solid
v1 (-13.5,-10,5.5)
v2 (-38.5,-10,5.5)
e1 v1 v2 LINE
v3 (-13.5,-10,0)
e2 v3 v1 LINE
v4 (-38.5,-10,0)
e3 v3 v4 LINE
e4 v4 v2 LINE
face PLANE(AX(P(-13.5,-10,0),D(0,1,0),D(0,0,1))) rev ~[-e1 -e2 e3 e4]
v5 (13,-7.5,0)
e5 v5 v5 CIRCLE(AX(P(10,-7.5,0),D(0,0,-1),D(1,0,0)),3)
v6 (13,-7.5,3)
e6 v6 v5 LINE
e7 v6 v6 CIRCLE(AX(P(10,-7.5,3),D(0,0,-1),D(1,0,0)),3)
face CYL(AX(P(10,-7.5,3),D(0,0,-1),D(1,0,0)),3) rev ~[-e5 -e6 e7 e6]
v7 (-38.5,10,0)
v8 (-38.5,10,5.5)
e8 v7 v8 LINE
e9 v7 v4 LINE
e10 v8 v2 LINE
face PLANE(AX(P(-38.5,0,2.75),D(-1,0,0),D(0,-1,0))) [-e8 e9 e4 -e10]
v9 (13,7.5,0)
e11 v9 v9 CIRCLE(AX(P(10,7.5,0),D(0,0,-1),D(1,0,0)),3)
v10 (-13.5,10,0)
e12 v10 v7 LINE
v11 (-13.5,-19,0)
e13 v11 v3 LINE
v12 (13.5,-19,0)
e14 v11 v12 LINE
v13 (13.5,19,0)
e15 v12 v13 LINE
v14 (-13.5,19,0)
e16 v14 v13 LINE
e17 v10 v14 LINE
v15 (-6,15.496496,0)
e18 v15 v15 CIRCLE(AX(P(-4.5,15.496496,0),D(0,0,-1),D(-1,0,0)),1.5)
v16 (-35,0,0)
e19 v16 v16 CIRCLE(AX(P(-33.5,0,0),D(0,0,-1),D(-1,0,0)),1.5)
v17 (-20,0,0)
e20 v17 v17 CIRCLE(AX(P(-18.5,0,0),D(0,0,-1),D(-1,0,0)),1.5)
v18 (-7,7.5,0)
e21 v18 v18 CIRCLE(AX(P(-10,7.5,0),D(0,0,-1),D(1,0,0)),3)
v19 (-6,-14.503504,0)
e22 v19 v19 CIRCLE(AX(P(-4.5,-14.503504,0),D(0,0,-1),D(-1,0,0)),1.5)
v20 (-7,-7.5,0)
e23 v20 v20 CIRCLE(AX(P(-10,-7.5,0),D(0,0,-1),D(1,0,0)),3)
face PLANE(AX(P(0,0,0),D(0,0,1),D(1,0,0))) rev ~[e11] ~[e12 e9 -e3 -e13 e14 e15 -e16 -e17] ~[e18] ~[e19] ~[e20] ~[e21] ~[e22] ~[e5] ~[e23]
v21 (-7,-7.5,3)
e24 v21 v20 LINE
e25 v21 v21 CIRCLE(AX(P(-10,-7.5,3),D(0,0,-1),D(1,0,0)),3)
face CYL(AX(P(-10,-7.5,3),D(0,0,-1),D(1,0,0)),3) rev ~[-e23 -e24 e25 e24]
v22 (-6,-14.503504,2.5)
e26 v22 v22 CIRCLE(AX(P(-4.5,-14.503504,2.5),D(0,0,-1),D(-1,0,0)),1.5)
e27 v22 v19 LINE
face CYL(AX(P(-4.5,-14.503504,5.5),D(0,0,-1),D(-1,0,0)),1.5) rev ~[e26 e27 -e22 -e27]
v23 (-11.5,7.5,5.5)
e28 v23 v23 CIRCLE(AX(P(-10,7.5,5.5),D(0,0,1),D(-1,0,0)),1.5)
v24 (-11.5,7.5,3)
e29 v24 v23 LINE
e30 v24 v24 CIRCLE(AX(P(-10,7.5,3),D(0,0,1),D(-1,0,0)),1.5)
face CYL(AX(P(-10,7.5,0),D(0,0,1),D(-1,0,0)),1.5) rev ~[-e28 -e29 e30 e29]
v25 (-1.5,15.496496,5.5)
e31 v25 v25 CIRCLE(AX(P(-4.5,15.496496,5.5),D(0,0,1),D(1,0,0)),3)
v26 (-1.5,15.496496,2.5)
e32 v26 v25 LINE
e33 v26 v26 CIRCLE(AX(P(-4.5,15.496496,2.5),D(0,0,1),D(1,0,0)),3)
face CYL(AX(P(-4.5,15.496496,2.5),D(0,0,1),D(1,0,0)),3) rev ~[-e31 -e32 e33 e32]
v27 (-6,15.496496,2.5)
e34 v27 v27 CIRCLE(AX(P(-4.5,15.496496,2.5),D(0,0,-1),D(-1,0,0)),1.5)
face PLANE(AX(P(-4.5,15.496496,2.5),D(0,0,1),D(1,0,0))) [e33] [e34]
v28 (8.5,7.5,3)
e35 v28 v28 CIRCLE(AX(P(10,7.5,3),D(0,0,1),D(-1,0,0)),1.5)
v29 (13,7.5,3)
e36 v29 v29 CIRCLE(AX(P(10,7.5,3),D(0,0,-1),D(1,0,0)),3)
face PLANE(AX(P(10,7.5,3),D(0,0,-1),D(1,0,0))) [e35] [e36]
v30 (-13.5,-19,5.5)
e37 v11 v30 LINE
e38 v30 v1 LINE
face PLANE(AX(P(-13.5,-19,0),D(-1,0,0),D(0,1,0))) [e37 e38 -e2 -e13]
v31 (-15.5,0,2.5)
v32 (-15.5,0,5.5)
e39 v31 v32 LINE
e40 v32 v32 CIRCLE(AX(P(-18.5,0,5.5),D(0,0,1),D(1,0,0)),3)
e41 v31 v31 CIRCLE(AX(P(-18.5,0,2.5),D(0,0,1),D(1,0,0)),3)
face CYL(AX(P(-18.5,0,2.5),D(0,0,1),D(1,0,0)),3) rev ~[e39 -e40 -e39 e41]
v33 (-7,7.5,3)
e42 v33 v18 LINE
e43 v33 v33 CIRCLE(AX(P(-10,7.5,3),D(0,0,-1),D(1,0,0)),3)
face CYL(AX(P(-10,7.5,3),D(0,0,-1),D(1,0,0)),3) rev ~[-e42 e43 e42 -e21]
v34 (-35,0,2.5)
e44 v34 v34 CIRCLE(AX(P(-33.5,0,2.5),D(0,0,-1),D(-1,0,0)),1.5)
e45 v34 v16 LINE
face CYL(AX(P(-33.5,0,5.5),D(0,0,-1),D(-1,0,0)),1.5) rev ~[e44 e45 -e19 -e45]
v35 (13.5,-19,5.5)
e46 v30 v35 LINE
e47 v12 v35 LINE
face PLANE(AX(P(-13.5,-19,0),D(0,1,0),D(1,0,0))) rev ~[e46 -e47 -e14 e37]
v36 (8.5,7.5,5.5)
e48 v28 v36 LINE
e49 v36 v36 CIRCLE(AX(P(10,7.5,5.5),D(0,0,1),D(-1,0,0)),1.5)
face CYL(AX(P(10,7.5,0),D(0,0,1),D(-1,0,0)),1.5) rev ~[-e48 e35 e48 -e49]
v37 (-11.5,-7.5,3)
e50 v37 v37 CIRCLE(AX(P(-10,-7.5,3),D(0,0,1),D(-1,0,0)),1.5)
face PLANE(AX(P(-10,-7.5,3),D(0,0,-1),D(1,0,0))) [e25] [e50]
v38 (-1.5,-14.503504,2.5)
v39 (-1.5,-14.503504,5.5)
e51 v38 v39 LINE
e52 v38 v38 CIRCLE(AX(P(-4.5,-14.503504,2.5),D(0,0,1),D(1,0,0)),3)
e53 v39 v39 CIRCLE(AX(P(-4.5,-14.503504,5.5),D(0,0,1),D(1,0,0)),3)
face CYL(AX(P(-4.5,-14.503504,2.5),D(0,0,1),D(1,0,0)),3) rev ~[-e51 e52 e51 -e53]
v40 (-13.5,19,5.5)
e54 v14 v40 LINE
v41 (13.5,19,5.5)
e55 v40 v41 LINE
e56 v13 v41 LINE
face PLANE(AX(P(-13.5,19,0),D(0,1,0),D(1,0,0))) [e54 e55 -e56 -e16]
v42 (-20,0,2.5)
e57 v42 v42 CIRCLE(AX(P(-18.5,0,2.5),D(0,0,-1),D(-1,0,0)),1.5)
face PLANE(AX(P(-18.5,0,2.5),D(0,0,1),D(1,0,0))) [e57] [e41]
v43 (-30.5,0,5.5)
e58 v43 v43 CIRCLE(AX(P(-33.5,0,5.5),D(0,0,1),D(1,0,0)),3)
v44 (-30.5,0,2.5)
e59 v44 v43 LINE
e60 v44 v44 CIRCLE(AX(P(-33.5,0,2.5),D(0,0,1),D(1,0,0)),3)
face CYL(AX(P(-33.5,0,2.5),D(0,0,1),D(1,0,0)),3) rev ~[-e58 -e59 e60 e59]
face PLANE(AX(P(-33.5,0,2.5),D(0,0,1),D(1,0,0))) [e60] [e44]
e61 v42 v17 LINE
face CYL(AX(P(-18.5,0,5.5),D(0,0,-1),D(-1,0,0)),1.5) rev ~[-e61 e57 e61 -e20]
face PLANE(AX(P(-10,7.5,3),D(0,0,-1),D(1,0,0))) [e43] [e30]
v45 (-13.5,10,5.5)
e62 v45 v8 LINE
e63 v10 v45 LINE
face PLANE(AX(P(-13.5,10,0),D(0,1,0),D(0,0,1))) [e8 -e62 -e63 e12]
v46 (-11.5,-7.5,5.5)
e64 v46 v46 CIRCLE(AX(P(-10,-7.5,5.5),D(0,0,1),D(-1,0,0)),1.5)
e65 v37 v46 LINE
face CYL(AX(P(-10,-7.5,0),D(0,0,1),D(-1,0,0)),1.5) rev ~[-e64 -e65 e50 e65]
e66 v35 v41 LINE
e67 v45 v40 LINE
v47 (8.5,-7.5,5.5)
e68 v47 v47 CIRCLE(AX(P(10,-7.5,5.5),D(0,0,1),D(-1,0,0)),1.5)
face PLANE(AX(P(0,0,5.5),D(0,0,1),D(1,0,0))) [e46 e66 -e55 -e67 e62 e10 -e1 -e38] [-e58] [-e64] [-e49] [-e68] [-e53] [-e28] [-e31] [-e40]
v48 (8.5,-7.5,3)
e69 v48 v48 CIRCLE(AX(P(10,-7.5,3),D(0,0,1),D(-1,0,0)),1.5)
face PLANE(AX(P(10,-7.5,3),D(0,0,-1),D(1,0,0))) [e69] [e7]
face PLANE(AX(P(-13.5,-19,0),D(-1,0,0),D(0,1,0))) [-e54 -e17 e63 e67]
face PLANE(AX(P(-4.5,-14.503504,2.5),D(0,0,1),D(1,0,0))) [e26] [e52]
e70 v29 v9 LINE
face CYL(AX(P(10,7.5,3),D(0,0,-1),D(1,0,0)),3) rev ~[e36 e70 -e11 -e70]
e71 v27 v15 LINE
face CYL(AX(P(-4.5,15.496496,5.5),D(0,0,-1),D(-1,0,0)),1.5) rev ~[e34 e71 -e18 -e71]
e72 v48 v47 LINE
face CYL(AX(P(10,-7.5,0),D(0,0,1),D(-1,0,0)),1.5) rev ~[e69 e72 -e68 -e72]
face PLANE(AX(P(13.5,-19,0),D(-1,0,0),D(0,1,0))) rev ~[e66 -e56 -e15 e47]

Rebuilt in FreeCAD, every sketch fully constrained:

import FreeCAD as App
import Part
import Sketcher

V = App.Vector
Q = App.Units.Quantity

doc = App.newDocument("Part")
params = doc.addObject("Spreadsheet::Sheet", "Params")
for row, (alias, value) in enumerate([
    ("sketch1_width", "27 mm"),
    ("sketch1_height", "38 mm"),
    ("pad1_length", "5.5 mm"),
    ("sketch2_diameter", "3 mm"),
    ("hole_diameter", "3 mm"),
    ("hole_depth", "50 mm"),
    ("hole_cbore_diameter", "6 mm"),
    ("hole_cbore_depth", "3 mm"),
    ("sketch3_diameter", "3 mm"),
    ("hole2_diameter", "3 mm"),
    ("hole2_depth", "50 mm"),
    ("hole2_cbore_diameter", "6 mm"),
    ("hole2_cbore_depth", "3 mm"),
    ("sketch4_width", "20 mm"),
    ("sketch4_height", "5.5 mm"),
    ("pad2_length", "25 mm"),
    ("sketch5_diameter", "3 mm"),
    ("hole3_diameter", "3 mm"),
    ("hole3_depth", "50 mm"),
    ("hole3_cbore_diameter", "6 mm"),
    ("hole3_cbore_depth", "3 mm"),
], start=1):
    params.set(f"A{row}", alias)
    params.set(f"B{row}", "=" + value)
    params.setAlias(f"B{row}", alias)

body = doc.addObject("PartDesign::Body", "Body")

sketch1 = doc.addObject("Sketcher::SketchObject", "Sketch")
body.addObject(sketch1)
sketch1.AttachmentSupport = (doc.XY_Plane, [""])
sketch1.MapMode = "FlatFace"
sketch1.addGeometry(Part.LineSegment(V(-14, 19, 0), V(-14, -19, 0)), False)
sketch1.addGeometry(Part.LineSegment(V(-14, -19, 0), V(14, -19, 0)), False)
sketch1.addGeometry(Part.LineSegment(V(14, -19, 0), V(14, 19, 0)), False)
sketch1.addGeometry(Part.LineSegment(V(14, 19, 0), V(-14, 19, 0)), False)
sketch1.addConstraint(Sketcher.Constraint("Coincident", 0, 2, 1, 1))
sketch1.addConstraint(Sketcher.Constraint("Coincident", 1, 2, 2, 1))
sketch1.addConstraint(Sketcher.Constraint("Coincident", 2, 2, 3, 1))
sketch1.addConstraint(Sketcher.Constraint("Coincident", 3, 2, 0, 1))
sketch1.addConstraint(Sketcher.Constraint("Vertical", 0))
sketch1.addConstraint(Sketcher.Constraint("Horizontal", 1))
sketch1.addConstraint(Sketcher.Constraint("Vertical", 2))
sketch1.addConstraint(Sketcher.Constraint("Horizontal", 3))
sketch1.addConstraint(Sketcher.Constraint("Symmetric", 0, 2, 2, 2, -1, 1))
sketch1.addConstraint(Sketcher.Constraint("DistanceX", 1, 1, 1, 2, Q("27 mm")))
sketch1.addConstraint(Sketcher.Constraint("DistanceY", 0, 2, 0, 1, Q("38 mm")))
sketch1.setExpression("Constraints[9]", "Params.sketch1_width")
sketch1.setExpression("Constraints[10]", "Params.sketch1_height")
pad1 = doc.addObject("PartDesign::Pad", "Pad")
body.addObject(pad1)
pad1.Profile = sketch1
pad1.setExpression("Length", "Params.pad1_length")

sketch2 = doc.addObject("Sketcher::SketchObject", "Sketch001")
body.addObject(sketch2)
sketch2.AttachmentSupport = (doc.XY_Plane, [""])
sketch2.MapMode = "FlatFace"
sketch2.addGeometry(Part.Circle(V(-10, 7.5, 0), V(0, 0, 1), 1.5), False)
sketch2.addGeometry(Part.Circle(V(-10, -7.5, 0), V(0, 0, 1), 1.5), False)
sketch2.addGeometry(Part.Circle(V(10, 7.5, 0), V(0, 0, 1), 1.5), False)
sketch2.addGeometry(Part.Circle(V(10, -7.5, 0), V(0, 0, 1), 1.5), False)
sketch2.addConstraint(Sketcher.Constraint("Equal", 0, 1))
sketch2.addConstraint(Sketcher.Constraint("Equal", 1, 2))
sketch2.addConstraint(Sketcher.Constraint("Equal", 2, 3))
sketch2.addConstraint(Sketcher.Constraint("Symmetric", 1, 3, 2, 3, -1, 1))
sketch2.addConstraint(Sketcher.Constraint("Symmetric", 0, 3, 3, 3, -1, 1))
sketch2.addConstraint(Sketcher.Constraint("Symmetric", 0, 3, 2, 3, -2))
sketch2.addConstraint(Sketcher.Constraint("Diameter", 0, Q("3 mm")))
sketch2.addConstraint(Sketcher.Constraint("DistanceX", 0, 3, -1, 1, Q("10 mm")))
sketch2.addConstraint(Sketcher.Constraint("DistanceY", 1, 3, 0, 3, Q("15 mm")))
sketch2.setExpression("Constraints[6]", "Params.sketch2_diameter")
doc.recompute()
hole = doc.addObject("PartDesign::Hole", "Hole")
body.addObject(hole)
hole.Profile = sketch2
hole.ThreadType = "None"
hole.setExpression("Diameter", "Params.hole_diameter")
hole.DepthType = "Dimension"
hole.setExpression("Depth", "Params.hole_depth")
hole.DrillPoint = "Flat"
hole.HoleCutType = "Counterbore"
hole.setExpression("HoleCutDiameter", "Params.hole_cbore_diameter")
hole.setExpression("HoleCutDepth", "Params.hole_cbore_depth")
hole.Reversed = True

sketch3 = doc.addObject("Sketcher::SketchObject", "Sketch002")
body.addObject(sketch3)
sketch3.AttachmentSupport = (doc.XY_Plane, [""])
sketch3.MapMode = "FlatFace"
sketch3.AttachmentOffset = App.Placement(V(0, 0, 5.5), App.Rotation())
sketch3.addGeometry(Part.Circle(V(-4.5, -14.5, 0), V(0, 0, 1), 1.5), False)
sketch3.addGeometry(Part.Circle(V(-4.5, 15.5, 0), V(0, 0, 1), 1.5), False)
sketch3.addConstraint(Sketcher.Constraint("Equal", 0, 1))
sketch3.addConstraint(Sketcher.Constraint("Vertical", 0, 3, 1, 3))
sketch3.addConstraint(Sketcher.Constraint("Diameter", 0, Q("3 mm")))
sketch3.addConstraint(Sketcher.Constraint("DistanceY", 0, 3, 1, 3, Q("30 mm")))
sketch3.addConstraint(Sketcher.Constraint("DistanceX", 0, 3, -1, 1, Q("4.5 mm")))
sketch3.addConstraint(Sketcher.Constraint("DistanceY", 0, 3, -1, 1, Q("14.503504 mm")))
sketch3.setExpression("Constraints[2]", "Params.sketch3_diameter")
doc.recompute()
hole2 = doc.addObject("PartDesign::Hole", "Hole001")
body.addObject(hole2)
hole2.Profile = sketch3
hole2.ThreadType = "None"
hole2.setExpression("Diameter", "Params.hole2_diameter")
hole2.DepthType = "Dimension"
hole2.setExpression("Depth", "Params.hole2_depth")
hole2.DrillPoint = "Flat"
hole2.HoleCutType = "Counterbore"
hole2.setExpression("HoleCutDiameter", "Params.hole2_cbore_diameter")
hole2.setExpression("HoleCutDepth", "Params.hole2_cbore_depth")

sketch4 = doc.addObject("Sketcher::SketchObject", "Sketch003")
body.addObject(sketch4)
sketch4.AttachmentSupport = (doc.YZ_Plane, [""])
sketch4.MapMode = "FlatFace"
sketch4.AttachmentOffset = App.Placement(V(0, 0, -13.5), App.Rotation())
sketch4.addGeometry(Part.LineSegment(V(10, 6, 0), V(10, 0, 0)), False)
sketch4.addGeometry(Part.LineSegment(V(10, 0, 0), V(-10, 0, 0)), False)
sketch4.addGeometry(Part.LineSegment(V(-10, 0, 0), V(-10, 6, 0)), False)
sketch4.addGeometry(Part.LineSegment(V(-10, 6, 0), V(10, 6, 0)), False)
sketch4.addConstraint(Sketcher.Constraint("Coincident", 0, 2, 1, 1))
sketch4.addConstraint(Sketcher.Constraint("Coincident", 1, 2, 2, 1))
sketch4.addConstraint(Sketcher.Constraint("Coincident", 2, 2, 3, 1))
sketch4.addConstraint(Sketcher.Constraint("Coincident", 3, 2, 0, 1))
sketch4.addConstraint(Sketcher.Constraint("Vertical", 0))
sketch4.addConstraint(Sketcher.Constraint("Horizontal", 1))
sketch4.addConstraint(Sketcher.Constraint("Vertical", 2))
sketch4.addConstraint(Sketcher.Constraint("Horizontal", 3))
sketch4.addConstraint(Sketcher.Constraint("Symmetric", 0, 2, 1, 2, -1, 1))
sketch4.addConstraint(Sketcher.Constraint("DistanceX", 1, 2, 1, 1, Q("20 mm")))
sketch4.addConstraint(Sketcher.Constraint("DistanceY", 0, 2, 0, 1, Q("5.5 mm")))
sketch4.setExpression("Constraints[9]", "Params.sketch4_width")
sketch4.setExpression("Constraints[10]", "Params.sketch4_height")
pad2 = doc.addObject("PartDesign::Pad", "Pad001")
body.addObject(pad2)
pad2.Profile = sketch4
pad2.setExpression("Length", "Params.pad2_length")
pad2.Reversed = True

sketch5 = doc.addObject("Sketcher::SketchObject", "Sketch004")
body.addObject(sketch5)
sketch5.AttachmentSupport = (doc.XY_Plane, [""])
sketch5.MapMode = "FlatFace"
sketch5.AttachmentOffset = App.Placement(V(0, 0, 5.5), App.Rotation())
sketch5.addGeometry(Part.Circle(V(-33.5, 0, 0), V(0, 0, 1), 1.5), False)
sketch5.addGeometry(Part.Circle(V(-18.5, 0, 0), V(0, 0, 1), 1.5), False)
sketch5.addConstraint(Sketcher.Constraint("Equal", 0, 1))
sketch5.addConstraint(Sketcher.Constraint("PointOnObject", 0, 3, -1))
sketch5.addConstraint(Sketcher.Constraint("PointOnObject", 1, 3, -1))
sketch5.addConstraint(Sketcher.Constraint("Diameter", 0, Q("3 mm")))
sketch5.addConstraint(Sketcher.Constraint("DistanceX", 0, 3, 1, 3, Q("15 mm")))
sketch5.addConstraint(Sketcher.Constraint("DistanceX", 0, 3, -1, 1, Q("33.5 mm")))
sketch5.setExpression("Constraints[3]", "Params.sketch5_diameter")
doc.recompute()
hole3 = doc.addObject("PartDesign::Hole", "Hole002")
body.addObject(hole3)
hole3.Profile = sketch5
hole3.ThreadType = "None"
hole3.setExpression("Diameter", "Params.hole3_diameter")
hole3.DepthType = "Dimension"
hole3.setExpression("Depth", "Params.hole3_depth")
hole3.DrillPoint = "Flat"
hole3.HoleCutType = "Counterbore"
hole3.setExpression("HoleCutDiameter", "Params.hole3_cbore_diameter")
hole3.setExpression("HoleCutDepth", "Params.hole3_cbore_depth")

doc.recompute()
